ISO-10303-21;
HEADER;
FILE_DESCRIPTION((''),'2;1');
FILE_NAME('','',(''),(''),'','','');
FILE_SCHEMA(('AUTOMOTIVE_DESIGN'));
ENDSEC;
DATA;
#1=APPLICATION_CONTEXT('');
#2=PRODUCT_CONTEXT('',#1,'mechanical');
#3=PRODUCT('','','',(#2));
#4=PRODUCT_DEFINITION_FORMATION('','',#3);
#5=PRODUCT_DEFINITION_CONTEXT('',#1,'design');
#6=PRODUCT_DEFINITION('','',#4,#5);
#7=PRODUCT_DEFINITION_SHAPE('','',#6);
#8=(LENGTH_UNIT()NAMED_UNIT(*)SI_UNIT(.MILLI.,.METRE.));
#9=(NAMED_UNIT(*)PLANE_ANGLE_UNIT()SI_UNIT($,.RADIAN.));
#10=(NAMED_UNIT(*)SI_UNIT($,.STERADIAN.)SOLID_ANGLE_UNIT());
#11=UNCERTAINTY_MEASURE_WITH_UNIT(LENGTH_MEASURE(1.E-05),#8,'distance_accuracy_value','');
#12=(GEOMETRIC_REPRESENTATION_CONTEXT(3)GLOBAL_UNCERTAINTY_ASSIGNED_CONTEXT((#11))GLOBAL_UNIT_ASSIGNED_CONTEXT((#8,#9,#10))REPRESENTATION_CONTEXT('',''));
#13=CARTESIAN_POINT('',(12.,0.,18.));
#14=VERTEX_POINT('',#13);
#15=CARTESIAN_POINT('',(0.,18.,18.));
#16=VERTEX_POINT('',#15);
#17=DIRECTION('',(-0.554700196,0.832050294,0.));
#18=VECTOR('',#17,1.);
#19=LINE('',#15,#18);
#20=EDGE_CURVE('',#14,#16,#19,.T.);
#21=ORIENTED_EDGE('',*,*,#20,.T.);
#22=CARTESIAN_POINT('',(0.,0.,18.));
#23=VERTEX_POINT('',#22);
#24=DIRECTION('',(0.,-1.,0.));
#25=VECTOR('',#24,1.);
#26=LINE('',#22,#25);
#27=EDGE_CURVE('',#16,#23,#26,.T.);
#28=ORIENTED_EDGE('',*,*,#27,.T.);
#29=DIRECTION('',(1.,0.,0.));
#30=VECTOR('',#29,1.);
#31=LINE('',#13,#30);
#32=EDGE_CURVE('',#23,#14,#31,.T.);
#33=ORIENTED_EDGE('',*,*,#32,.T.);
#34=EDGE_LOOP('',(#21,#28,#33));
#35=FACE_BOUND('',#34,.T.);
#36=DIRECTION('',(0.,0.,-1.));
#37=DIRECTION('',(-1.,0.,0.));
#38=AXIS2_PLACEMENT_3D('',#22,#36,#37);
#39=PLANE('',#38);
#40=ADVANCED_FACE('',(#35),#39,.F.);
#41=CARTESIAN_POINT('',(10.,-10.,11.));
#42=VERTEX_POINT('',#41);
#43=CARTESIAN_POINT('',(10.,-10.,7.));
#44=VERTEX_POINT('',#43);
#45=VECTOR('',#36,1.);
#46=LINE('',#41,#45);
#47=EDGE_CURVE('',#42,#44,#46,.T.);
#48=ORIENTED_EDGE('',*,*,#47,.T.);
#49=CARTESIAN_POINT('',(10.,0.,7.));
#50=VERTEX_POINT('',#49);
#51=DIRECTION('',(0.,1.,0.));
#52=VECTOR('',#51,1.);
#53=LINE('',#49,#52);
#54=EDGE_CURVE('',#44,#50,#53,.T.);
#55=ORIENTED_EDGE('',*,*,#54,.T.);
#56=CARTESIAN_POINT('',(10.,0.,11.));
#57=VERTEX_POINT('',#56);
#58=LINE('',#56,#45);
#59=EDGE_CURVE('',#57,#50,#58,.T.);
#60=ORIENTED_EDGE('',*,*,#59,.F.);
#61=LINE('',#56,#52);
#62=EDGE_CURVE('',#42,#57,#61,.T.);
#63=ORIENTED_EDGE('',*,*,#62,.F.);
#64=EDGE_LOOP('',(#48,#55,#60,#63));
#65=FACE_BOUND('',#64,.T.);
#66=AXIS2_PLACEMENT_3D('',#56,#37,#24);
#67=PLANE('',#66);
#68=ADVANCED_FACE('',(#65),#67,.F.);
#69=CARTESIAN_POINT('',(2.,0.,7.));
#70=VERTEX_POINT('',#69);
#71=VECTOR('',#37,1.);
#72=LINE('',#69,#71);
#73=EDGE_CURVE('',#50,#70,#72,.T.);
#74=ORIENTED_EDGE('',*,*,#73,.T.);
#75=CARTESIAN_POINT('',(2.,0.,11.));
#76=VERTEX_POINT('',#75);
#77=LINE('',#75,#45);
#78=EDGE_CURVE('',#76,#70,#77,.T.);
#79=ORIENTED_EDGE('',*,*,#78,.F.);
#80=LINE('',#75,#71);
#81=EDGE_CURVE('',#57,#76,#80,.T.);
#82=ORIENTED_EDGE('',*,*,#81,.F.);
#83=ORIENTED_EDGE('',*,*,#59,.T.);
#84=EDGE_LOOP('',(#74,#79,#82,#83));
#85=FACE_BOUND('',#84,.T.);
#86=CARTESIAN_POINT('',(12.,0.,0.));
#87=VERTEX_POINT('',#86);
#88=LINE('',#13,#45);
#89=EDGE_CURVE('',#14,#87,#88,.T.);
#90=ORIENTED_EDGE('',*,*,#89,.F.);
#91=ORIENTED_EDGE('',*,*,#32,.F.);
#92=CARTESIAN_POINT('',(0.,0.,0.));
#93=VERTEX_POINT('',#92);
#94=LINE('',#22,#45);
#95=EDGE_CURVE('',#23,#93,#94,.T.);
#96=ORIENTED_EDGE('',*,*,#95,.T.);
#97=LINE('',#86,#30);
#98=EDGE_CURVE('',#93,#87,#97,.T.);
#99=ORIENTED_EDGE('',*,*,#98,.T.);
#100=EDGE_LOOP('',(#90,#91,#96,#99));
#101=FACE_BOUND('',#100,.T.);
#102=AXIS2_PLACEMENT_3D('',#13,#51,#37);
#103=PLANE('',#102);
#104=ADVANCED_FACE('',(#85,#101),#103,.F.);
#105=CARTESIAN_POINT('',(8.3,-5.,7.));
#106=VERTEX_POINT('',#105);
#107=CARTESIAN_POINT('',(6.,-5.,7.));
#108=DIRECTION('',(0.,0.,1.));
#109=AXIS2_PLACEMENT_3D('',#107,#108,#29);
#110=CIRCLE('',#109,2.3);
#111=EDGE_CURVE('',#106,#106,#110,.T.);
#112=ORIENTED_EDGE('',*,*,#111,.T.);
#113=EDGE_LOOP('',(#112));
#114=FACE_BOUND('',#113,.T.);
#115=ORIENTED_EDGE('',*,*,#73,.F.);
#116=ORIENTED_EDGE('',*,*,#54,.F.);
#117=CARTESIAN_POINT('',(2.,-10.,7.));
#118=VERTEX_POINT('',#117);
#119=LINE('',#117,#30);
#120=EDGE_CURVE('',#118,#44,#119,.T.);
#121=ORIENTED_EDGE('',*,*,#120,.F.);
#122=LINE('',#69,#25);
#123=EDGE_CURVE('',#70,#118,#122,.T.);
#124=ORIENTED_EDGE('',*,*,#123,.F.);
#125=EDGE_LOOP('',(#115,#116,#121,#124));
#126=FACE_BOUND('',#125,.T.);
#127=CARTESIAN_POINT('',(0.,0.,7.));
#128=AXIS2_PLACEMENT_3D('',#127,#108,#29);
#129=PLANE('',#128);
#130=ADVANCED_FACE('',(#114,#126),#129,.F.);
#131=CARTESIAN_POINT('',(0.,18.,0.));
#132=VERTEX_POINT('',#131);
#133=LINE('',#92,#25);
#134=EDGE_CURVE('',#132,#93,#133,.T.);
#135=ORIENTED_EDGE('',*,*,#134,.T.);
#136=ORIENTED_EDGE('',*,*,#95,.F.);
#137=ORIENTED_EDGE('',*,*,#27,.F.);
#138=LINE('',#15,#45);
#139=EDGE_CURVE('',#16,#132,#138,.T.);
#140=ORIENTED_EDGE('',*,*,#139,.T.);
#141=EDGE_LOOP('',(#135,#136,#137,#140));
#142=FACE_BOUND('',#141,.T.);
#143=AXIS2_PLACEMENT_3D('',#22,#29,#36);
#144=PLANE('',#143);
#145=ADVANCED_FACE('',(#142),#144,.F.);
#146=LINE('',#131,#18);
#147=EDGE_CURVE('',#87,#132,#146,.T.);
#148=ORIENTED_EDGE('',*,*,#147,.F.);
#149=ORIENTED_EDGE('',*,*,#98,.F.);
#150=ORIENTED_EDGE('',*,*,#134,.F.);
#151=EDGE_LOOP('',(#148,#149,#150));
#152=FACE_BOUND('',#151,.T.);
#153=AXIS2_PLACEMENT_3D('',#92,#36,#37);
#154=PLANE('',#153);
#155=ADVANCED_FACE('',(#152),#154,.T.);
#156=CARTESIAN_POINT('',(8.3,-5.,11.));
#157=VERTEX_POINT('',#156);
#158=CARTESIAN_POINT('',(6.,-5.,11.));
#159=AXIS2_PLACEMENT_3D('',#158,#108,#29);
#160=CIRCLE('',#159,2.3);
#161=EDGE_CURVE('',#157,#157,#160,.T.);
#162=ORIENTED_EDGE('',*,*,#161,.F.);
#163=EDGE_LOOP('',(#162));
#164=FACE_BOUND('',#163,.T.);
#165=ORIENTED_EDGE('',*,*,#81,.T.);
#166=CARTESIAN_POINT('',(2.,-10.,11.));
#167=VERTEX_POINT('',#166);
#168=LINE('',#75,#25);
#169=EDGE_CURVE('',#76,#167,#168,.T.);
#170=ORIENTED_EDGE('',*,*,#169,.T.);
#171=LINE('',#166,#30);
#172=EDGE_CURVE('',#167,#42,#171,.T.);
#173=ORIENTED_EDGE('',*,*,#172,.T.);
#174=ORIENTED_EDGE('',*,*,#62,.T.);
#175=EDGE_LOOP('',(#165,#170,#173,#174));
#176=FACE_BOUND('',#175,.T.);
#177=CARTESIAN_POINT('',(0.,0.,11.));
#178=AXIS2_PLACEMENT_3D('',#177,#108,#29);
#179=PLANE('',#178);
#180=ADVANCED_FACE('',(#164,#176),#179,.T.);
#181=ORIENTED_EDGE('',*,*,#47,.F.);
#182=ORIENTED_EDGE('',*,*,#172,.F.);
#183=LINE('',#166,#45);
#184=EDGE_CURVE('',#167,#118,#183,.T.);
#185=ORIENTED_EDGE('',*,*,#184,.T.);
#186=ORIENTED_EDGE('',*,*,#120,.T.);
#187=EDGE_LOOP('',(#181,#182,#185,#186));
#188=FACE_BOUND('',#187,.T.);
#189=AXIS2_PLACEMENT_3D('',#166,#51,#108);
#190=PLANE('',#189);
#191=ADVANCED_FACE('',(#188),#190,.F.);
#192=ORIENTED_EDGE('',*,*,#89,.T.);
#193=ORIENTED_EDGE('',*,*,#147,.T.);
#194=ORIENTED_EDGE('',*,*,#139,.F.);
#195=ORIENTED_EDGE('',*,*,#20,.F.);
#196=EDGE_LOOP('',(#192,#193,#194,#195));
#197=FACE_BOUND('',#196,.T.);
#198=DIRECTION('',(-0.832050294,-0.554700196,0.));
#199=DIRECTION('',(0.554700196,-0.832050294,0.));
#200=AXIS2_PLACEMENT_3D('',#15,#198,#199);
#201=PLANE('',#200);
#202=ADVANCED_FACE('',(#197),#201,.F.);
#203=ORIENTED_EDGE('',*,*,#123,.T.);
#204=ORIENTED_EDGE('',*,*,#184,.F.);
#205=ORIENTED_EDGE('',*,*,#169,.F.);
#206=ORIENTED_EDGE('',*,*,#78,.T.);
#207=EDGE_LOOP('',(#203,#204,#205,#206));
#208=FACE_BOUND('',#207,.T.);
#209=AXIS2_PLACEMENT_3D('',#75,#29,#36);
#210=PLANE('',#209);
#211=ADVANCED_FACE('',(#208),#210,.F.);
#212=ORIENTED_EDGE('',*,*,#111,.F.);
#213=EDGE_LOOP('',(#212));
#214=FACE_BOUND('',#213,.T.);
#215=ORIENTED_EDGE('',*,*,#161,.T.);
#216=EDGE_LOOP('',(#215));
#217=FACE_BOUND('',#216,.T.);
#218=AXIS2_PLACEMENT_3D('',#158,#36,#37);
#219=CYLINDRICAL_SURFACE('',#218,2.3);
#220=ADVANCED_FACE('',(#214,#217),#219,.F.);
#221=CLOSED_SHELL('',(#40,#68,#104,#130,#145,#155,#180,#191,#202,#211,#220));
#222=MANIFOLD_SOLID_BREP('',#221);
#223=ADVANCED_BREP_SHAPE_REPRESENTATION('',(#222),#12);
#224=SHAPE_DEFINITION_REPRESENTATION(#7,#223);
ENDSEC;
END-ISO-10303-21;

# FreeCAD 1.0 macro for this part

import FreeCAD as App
import Part
import Sketcher

V = App.Vector
Q = App.Units.Quantity


def add_polygon(sketch, points):
    """Adds a closed chain of lines whose ends are joined by coincident constraints."""
    first, n = sketch.GeometryCount, len(points)
    for a, b in zip(points, points[1:] + points[:1]):
        sketch.addGeometry(Part.LineSegment(App.Vector(*a, 0), App.Vector(*b, 0)), False)
    for i in range(n):
        sketch.addConstraint(Sketcher.Constraint("Coincident", first + i, 2, first + (i + 1) % n, 1))

doc = App.newDocument("Part")
body = doc.addObject("PartDesign::Body", "Body")

sketch1 = body.newObject("Sketcher::SketchObject", "Sketch")
sketch1.AttachmentSupport = (doc.getObject("XY_Plane"), [""])
sketch1.MapMode = "FlatFace"
add_polygon(sketch1, [(0, 18), (0, 0), (12, 0)])
sketch1.addConstraint(Sketcher.Constraint("Vertical", 0))
sketch1.addConstraint(Sketcher.Constraint("Horizontal", 1))
sketch1.addConstraint(Sketcher.Constraint("Coincident", 0, 2, -1, 1))
sketch1.addConstraint(Sketcher.Constraint("DistanceX", 1, 1, 1, 2, Q("12 mm")))
sketch1.addConstraint(Sketcher.Constraint("DistanceY", 0, 2, 0, 1, Q("18 mm")))
pad1 = body.newObject("PartDesign::Pad", "Pad")
pad1.Profile = sketch1
pad1.Length = 18

sketch2 = body.newObject("Sketcher::SketchObject", "Sketch001")
sketch2.AttachmentSupport = (doc.getObject("XY_Plane"), [""])
sketch2.MapMode = "FlatFace"
sketch2.AttachmentOffset = App.Placement(V(0, 0, 9), App.Rotation())
add_polygon(sketch2, [(2, 0), (2, -10), (10, -10), (10, 0)])
sketch2.addGeometry(Part.Circle(V(6, -5, 0), V(0, 0, 1), 2.3), False)
sketch2.addConstraint(Sketcher.Constraint("Vertical", 0))
sketch2.addConstraint(Sketcher.Constraint("Horizontal", 1))
sketch2.addConstraint(Sketcher.Constraint("Vertical", 2))
sketch2.addConstraint(Sketcher.Constraint("Horizontal", 3))
sketch2.addConstraint(Sketcher.Constraint("PointOnObject", 2, 2, -1))
sketch2.addConstraint(Sketcher.Constraint("Diameter", 4, Q("4.6 mm")))
sketch2.addConstraint(Sketcher.Constraint("DistanceX", 1, 1, 1, 2, Q("8 mm")))
sketch2.addConstraint(Sketcher.Constraint("DistanceY", 0, 2, 0, 1, Q("10 mm")))
sketch2.addConstraint(Sketcher.Constraint("DistanceX", -1, 1, 4, 3, Q("6 mm")))
sketch2.addConstraint(Sketcher.Constraint("DistanceY", 4, 3, -1, 1, Q("5 mm")))
sketch2.addConstraint(Sketcher.Constraint("DistanceX", -1, 1, 0, 2, Q("2 mm")))
pad2 = body.newObject("PartDesign::Pad", "Pad001")
pad2.Profile = sketch2
pad2.Type = "TwoLengths"
pad2.Length = 2
pad2.Length2 = 2

doc.recompute()
